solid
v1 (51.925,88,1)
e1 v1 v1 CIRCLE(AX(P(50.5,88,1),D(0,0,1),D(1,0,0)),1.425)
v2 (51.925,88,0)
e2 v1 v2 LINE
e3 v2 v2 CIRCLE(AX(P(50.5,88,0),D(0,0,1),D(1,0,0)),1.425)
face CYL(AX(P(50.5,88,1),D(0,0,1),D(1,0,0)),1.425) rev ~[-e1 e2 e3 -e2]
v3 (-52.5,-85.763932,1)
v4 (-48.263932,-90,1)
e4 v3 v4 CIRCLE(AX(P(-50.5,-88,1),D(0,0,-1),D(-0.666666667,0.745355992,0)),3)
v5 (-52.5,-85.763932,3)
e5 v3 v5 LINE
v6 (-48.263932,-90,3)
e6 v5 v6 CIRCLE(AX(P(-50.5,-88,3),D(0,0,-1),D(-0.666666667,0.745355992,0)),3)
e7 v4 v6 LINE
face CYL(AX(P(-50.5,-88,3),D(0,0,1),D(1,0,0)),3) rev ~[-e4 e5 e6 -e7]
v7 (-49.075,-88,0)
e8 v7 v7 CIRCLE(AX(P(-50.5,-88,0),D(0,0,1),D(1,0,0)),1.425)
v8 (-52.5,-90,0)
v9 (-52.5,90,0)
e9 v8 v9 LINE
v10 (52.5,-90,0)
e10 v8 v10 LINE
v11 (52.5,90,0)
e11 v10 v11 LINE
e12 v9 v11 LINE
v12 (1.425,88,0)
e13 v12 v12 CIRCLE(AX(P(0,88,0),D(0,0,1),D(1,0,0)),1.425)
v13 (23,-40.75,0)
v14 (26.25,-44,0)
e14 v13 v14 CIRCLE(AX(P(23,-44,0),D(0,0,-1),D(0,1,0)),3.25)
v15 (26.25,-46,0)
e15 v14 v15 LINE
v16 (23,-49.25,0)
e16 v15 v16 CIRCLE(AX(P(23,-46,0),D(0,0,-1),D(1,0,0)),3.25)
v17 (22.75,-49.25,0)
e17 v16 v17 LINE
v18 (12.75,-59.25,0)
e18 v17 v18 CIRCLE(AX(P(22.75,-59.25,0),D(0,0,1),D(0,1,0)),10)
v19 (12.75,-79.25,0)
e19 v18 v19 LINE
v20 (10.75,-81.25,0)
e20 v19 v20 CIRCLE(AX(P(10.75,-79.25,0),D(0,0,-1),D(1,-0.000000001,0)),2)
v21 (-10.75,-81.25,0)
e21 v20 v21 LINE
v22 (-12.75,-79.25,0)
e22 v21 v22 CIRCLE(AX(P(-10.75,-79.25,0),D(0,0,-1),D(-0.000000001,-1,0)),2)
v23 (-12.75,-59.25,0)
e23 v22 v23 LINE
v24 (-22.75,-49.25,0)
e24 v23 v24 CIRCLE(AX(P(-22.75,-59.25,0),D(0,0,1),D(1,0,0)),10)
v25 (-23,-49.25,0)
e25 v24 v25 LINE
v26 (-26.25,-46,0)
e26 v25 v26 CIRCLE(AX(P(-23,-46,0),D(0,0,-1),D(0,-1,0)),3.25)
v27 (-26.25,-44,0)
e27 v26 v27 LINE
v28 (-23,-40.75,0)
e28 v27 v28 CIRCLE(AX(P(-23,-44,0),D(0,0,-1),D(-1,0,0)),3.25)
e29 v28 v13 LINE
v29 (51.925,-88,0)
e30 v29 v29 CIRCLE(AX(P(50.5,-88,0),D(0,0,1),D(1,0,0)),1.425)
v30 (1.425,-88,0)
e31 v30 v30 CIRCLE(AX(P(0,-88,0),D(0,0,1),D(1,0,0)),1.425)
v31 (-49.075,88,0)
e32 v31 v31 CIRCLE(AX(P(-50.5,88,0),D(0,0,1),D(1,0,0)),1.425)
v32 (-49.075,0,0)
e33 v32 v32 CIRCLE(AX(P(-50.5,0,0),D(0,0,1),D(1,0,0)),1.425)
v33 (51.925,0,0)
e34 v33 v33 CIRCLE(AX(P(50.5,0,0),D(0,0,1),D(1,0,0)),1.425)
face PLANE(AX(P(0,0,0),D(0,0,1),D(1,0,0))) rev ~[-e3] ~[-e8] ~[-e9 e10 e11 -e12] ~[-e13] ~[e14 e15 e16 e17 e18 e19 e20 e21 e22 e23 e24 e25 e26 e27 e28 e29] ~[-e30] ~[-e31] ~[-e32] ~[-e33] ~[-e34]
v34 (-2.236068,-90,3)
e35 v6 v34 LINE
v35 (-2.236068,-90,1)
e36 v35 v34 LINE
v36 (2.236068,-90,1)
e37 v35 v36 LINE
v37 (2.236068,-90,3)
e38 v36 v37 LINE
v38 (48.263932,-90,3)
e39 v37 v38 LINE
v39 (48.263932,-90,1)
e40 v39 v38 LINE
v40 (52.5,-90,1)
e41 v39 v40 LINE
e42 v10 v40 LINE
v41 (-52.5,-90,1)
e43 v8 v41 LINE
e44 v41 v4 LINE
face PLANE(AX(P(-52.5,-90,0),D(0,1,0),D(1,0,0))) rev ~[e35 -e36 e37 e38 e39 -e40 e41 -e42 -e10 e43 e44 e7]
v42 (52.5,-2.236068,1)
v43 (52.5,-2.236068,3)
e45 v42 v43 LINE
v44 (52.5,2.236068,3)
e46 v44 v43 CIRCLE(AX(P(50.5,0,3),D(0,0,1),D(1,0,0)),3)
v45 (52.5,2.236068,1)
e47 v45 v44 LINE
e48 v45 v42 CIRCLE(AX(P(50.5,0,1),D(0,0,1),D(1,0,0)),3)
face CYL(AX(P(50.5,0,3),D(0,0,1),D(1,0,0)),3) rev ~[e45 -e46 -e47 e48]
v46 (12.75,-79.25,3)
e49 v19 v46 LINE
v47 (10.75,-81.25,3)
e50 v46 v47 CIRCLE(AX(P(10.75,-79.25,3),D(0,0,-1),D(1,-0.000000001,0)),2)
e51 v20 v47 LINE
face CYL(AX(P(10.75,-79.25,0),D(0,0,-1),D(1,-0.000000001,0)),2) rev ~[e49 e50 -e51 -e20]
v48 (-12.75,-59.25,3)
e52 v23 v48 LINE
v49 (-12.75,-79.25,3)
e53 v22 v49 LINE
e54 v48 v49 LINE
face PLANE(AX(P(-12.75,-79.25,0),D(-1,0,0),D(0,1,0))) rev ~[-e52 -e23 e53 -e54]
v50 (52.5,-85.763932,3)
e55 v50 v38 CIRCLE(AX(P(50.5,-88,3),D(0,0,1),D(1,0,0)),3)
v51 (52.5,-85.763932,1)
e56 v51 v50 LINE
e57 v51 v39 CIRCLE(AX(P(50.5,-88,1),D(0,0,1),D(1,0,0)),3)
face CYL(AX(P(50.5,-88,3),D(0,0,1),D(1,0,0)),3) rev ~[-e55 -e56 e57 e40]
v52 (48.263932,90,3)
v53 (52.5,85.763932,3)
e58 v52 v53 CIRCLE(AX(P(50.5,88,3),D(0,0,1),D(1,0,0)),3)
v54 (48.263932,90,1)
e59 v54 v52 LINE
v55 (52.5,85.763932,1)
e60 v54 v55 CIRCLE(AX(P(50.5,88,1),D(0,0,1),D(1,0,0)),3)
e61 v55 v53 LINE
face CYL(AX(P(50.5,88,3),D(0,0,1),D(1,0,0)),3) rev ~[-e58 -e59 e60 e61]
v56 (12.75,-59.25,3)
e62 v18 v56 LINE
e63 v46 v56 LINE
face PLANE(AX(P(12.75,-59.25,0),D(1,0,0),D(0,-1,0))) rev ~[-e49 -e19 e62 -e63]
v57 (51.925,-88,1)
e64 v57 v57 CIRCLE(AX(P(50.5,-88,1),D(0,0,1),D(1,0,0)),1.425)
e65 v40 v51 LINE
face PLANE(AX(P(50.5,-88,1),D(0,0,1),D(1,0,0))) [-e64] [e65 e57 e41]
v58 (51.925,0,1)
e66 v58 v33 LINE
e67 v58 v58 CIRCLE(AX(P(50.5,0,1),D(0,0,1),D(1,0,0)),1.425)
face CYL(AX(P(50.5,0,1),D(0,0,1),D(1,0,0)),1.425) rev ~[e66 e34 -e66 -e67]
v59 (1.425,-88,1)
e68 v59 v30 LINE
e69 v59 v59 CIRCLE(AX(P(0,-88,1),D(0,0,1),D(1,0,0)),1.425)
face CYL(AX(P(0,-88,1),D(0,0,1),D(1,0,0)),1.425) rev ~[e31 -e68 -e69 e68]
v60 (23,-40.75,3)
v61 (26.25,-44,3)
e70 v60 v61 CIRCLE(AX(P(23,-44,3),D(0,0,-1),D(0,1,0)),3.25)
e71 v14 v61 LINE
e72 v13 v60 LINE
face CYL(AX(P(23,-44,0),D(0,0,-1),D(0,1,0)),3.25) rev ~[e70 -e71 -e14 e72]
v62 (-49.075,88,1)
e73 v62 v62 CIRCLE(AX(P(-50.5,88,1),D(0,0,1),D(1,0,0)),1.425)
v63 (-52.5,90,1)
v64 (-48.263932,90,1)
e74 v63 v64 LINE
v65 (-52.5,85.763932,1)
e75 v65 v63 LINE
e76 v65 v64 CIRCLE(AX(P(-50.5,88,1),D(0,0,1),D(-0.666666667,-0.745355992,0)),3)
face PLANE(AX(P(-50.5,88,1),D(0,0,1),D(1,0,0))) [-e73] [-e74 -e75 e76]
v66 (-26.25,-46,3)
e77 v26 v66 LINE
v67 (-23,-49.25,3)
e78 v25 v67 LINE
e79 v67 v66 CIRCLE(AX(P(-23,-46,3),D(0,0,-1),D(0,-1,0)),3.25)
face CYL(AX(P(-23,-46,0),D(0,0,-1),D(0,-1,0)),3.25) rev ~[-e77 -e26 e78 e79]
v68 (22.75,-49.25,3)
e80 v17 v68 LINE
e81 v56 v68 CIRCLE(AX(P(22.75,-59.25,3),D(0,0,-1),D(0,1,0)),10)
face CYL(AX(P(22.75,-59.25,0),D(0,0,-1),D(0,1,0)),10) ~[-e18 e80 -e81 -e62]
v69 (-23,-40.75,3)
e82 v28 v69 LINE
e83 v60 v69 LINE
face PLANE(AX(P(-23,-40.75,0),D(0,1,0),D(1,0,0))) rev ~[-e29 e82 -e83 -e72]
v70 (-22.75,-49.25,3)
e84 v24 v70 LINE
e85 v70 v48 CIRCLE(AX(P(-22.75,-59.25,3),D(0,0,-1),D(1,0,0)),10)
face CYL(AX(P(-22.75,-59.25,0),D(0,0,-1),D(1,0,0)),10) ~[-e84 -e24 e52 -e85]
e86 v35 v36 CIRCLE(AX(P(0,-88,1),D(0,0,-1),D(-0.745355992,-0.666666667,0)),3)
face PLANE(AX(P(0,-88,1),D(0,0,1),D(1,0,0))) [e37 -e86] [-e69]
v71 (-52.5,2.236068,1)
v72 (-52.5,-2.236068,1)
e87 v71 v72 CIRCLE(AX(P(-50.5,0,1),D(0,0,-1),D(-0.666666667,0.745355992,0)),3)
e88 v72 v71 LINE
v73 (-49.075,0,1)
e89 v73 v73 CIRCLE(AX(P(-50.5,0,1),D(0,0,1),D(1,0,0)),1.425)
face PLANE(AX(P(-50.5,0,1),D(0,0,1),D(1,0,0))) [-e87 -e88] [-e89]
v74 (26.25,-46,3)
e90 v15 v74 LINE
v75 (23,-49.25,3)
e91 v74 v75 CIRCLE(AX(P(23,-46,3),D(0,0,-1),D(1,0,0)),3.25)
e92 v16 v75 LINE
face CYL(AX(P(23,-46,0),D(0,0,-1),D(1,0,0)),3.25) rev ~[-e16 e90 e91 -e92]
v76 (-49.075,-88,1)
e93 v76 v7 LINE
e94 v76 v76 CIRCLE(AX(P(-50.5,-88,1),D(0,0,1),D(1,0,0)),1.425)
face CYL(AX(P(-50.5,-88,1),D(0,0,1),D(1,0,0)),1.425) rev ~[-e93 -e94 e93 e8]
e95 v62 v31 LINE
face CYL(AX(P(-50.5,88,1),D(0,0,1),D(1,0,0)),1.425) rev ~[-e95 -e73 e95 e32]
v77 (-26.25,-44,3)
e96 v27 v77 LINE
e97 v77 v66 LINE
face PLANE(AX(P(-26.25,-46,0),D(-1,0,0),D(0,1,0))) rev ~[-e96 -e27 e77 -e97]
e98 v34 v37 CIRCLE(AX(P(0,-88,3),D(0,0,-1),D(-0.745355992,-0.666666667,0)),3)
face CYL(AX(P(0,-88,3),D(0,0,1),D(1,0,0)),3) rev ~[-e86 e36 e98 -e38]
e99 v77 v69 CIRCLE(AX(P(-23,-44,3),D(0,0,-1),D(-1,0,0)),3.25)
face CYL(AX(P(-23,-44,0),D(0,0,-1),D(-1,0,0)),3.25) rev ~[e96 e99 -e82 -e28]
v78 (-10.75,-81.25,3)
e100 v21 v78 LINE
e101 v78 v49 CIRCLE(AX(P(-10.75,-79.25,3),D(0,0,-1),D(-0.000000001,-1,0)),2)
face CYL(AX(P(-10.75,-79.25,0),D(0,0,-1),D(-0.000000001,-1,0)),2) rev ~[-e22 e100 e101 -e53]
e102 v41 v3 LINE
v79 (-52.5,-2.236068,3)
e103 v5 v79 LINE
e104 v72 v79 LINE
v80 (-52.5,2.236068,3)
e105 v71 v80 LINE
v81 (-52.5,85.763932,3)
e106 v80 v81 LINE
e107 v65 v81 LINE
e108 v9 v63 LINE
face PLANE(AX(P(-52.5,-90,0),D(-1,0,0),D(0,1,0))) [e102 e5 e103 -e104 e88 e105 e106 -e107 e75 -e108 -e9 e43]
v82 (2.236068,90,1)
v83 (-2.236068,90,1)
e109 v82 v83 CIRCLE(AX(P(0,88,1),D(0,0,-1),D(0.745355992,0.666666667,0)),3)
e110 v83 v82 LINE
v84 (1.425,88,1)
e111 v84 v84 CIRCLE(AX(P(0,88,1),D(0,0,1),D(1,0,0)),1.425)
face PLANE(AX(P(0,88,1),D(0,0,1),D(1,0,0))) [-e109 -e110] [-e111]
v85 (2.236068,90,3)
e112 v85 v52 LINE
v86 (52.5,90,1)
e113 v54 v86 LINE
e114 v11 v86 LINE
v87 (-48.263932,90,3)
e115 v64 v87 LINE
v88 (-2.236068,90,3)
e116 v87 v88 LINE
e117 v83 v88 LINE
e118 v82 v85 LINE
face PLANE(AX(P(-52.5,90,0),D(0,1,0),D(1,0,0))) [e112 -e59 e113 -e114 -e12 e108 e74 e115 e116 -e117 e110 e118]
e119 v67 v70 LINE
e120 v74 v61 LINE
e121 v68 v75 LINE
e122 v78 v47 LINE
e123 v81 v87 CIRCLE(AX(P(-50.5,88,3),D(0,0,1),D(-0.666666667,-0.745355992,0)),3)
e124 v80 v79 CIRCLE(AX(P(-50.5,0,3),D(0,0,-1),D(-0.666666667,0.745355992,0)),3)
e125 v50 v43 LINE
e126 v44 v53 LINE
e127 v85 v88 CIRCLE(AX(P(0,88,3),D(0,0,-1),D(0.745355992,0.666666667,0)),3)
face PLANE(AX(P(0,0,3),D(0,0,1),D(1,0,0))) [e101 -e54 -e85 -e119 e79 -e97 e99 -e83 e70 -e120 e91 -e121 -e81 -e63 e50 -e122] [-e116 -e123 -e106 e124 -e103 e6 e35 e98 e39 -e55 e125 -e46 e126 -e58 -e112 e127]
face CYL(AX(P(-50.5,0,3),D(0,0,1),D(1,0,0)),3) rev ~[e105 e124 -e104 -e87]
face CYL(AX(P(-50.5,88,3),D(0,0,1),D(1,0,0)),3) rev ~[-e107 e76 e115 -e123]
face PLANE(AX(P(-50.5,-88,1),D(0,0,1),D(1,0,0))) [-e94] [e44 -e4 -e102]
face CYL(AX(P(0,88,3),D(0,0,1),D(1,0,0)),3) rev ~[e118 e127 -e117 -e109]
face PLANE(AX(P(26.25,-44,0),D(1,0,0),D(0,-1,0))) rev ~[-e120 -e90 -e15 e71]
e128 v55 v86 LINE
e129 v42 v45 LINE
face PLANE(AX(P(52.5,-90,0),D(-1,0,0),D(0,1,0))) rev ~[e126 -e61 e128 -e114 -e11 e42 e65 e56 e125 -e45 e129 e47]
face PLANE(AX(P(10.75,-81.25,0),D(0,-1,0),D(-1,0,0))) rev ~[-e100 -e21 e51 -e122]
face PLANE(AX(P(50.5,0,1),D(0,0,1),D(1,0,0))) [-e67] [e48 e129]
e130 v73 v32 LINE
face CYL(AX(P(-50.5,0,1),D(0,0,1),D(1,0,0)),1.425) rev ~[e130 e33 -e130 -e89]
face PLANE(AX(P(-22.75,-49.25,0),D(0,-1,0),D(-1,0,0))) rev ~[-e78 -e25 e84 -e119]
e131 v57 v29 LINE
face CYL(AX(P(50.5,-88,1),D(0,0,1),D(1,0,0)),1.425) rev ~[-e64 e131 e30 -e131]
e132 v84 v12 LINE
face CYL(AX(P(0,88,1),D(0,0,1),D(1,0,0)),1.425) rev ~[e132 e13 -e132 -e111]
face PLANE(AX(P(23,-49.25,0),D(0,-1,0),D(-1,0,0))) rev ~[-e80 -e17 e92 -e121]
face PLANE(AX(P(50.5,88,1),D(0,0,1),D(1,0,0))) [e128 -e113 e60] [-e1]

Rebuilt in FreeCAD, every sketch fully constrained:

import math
import FreeCAD as App
import Part
import Sketcher
from FreeCAD import Vector


def add_polygon(sketch, points):
    """Adds a closed chain of lines whose ends are joined by coincident constraints."""
    first, n = sketch.GeometryCount, len(points)
    for a, b in zip(points, points[1:] + points[:1]):
        sketch.addGeometry(Part.LineSegment(App.Vector(*a, 0), App.Vector(*b, 0)), False)
    for i in range(n):
        sketch.addConstraint(Sketcher.Constraint("Coincident", first + i, 2, first + (i + 1) % n, 1))

doc = App.newDocument("Part")
body = doc.addObject("PartDesign::Body", "Body")

# Sketch on XY plane
sketch1 = body.newObject("Sketcher::SketchObject", "Sketch")
sketch1.AttachmentSupport = (doc.getObject("XY_Plane"), [""])
sketch1.MapMode = "FlatFace"
add_polygon(sketch1, [(-52.5, 90), (-52.5, -90), (52.5, -90), (52.5, 90)])  # lines 0-3
sketch1.addConstraint([
    Sketcher.Constraint("Vertical", 0),
    Sketcher.Constraint("Horizontal", 1),
    Sketcher.Constraint("Vertical", 2),
    Sketcher.Constraint("Horizontal", 3),
    Sketcher.Constraint("Symmetric", 0, 2, 2, 2, -1, 1),
    Sketcher.Constraint("DistanceX", 1, 1, 1, 2, 105.0),
    Sketcher.Constraint("DistanceY", 0, 2, 0, 1, 180.0),
])
pad1 = body.newObject("PartDesign::Pad", "Pad")
pad1.Profile = sketch1
pad1.Length = 3

# Sketch on XY plane
sketch2 = body.newObject("Sketcher::SketchObject", "Sketch001")
sketch2.AttachmentSupport = (doc.getObject("XY_Plane"), [""])
sketch2.MapMode = "FlatFace"
sketch2.addGeometry([
    Part.LineSegment(Vector(26.25, -44, 0), Vector(26.25, -46, 0)),  # 0
    Part.ArcOfCircle(Part.Circle(Vector(23, -46, 0), Vector(0, 0, 1), 3.25), math.radians(-90), math.radians(0)),  # 1
    Part.LineSegment(Vector(23, -49.25, 0), Vector(22.75, -49.25, 0)),  # 2
    Part.ArcOfCircle(Part.Circle(Vector(22.75, -59.25, 0), Vector(0, 0, 1), 10), math.radians(90), math.radians(180)),  # 3
    Part.LineSegment(Vector(12.75, -59.25, 0), Vector(12.75, -79.25, 0)),  # 4
    Part.ArcOfCircle(Part.Circle(Vector(10.75, -79.25, 0), Vector(0, 0, 1), 2), math.radians(-90), math.radians(0)),  # 5
    Part.LineSegment(Vector(10.75, -81.25, 0), Vector(-10.75, -81.25, 0)),  # 6
    Part.ArcOfCircle(Part.Circle(Vector(-10.75, -79.25, 0), Vector(0, 0, 1), 2), math.radians(-180), math.radians(-90)),  # 7
    Part.LineSegment(Vector(-12.75, -79.25, 0), Vector(-12.75, -59.25, 0)),  # 8
    Part.ArcOfCircle(Part.Circle(Vector(-22.75, -59.25, 0), Vector(0, 0, 1), 10), math.radians(0), math.radians(90)),  # 9
    Part.LineSegment(Vector(-22.75, -49.25, 0), Vector(-23, -49.25, 0)),  # 10
    Part.ArcOfCircle(Part.Circle(Vector(-23, -46, 0), Vector(0, 0, 1), 3.25), math.radians(180), math.radians(270)),  # 11
    Part.LineSegment(Vector(-26.25, -46, 0), Vector(-26.25, -44, 0)),  # 12
    Part.ArcOfCircle(Part.Circle(Vector(-23, -44, 0), Vector(0, 0, 1), 3.25), math.radians(90), math.radians(180)),  # 13
    Part.LineSegment(Vector(-23, -40.75, 0), Vector(23, -40.75, 0)),  # 14
    Part.ArcOfCircle(Part.Circle(Vector(23, -44, 0), Vector(0, 0, 1), 3.25), math.radians(0), math.radians(90)),  # 15
], False)
sketch2.addConstraint([
    Sketcher.Constraint("Tangent", 0, 2, 1, 2),
    Sketcher.Constraint("Tangent", 1, 1, 2, 1),
    Sketcher.Constraint("Tangent", 2, 2, 3, 1),
    Sketcher.Constraint("Tangent", 3, 2, 4, 1),
    Sketcher.Constraint("Tangent", 4, 2, 5, 2),
    Sketcher.Constraint("Tangent", 5, 1, 6, 1),
    Sketcher.Constraint("Tangent", 6, 2, 7, 2),
    Sketcher.Constraint("Tangent", 7, 1, 8, 1),
    Sketcher.Constraint("Tangent", 8, 2, 9, 1),
    Sketcher.Constraint("Tangent", 9, 2, 10, 1),
    Sketcher.Constraint("Tangent", 10, 2, 11, 2),
    Sketcher.Constraint("Tangent", 11, 1, 12, 1),
    Sketcher.Constraint("Tangent", 12, 2, 13, 2),
    Sketcher.Constraint("Tangent", 13, 1, 14, 1),
    Sketcher.Constraint("Tangent", 14, 2, 15, 2),
    Sketcher.Constraint("Tangent", 15, 1, 0, 1),
    Sketcher.Constraint("Vertical", 0),
    Sketcher.Constraint("Horizontal", 2),
    Sketcher.Constraint("Vertical", 4),
    Sketcher.Constraint("Horizontal", 6),
    Sketcher.Constraint("Vertical", 8),
    Sketcher.Constraint("Horizontal", 10),
    Sketcher.Constraint("Vertical", 12),
    Sketcher.Constraint("Horizontal", 14),
    Sketcher.Constraint("Equal", 5, 7),
    Sketcher.Constraint("Equal", 3, 9),
    Sketcher.Constraint("Equal", 1, 11),
    Sketcher.Constraint("Equal", 11, 13),
    Sketcher.Constraint("Equal", 13, 15),
    Sketcher.Constraint("Symmetric", 3, 3, 9, 3, -2),
    Sketcher.Constraint("Equal", 2, 10),
    Sketcher.Constraint("Radius", 3, 10.0),
    Sketcher.Constraint("Radius", 5, 2.0),
    Sketcher.Constraint("DistanceX", 14, 1, 14, 2, 46.0),
    Sketcher.Constraint("DistanceY", 0, 2, 0, 1, 2.0),
    Sketcher.Constraint("DistanceY", 4, 2, 4, 1, 20.0),
    Sketcher.Constraint("Radius", 1, 3.25),
    Sketcher.Constraint("DistanceX", 6, 2, 6, 1, 21.5),
    Sketcher.Constraint("DistanceY", 1, 3, -1, 1, 46.0),
])
pocket1 = body.newObject("PartDesign::Pocket", "Pocket")
pocket1.Profile = sketch2
pocket1.Length = 10
pocket1.Reversed = True

# Sketch on XY plane
sketch3 = body.newObject("Sketcher::SketchObject", "Sketch002")
sketch3.AttachmentSupport = (doc.getObject("XY_Plane"), [""])
sketch3.MapMode = "FlatFace"
sketch3.AttachmentOffset = App.Placement(Vector(0, 0, 3), App.Rotation())
sketch3.addGeometry([
    Part.Circle(Vector(-50.5, 88, 0), Vector(0, 0, 1), 3),  # 0
    Part.Circle(Vector(0, 88, 0), Vector(0, 0, 1), 3),  # 1
    Part.Circle(Vector(50.5, 88, 0), Vector(0, 0, 1), 3),  # 2
    Part.Circle(Vector(50.5, 0, 0), Vector(0, 0, 1), 3),  # 3
    Part.Circle(Vector(50.5, -88, 0), Vector(0, 0, 1), 3),  # 4
    Part.Circle(Vector(0, -88, 0), Vector(0, 0, 1), 3),  # 5
    Part.Circle(Vector(-50.5, -88, 0), Vector(0, 0, 1), 3),  # 6
    Part.Circle(Vector(-50.5, 0, 0), Vector(0, 0, 1), 3),  # 7
], False)
sketch3.addConstraint([
    Sketcher.Constraint("Equal", 0, 1),
    Sketcher.Constraint("Equal", 1, 2),
    Sketcher.Constraint("Equal", 2, 3),
    Sketcher.Constraint("Equal", 3, 4),
    Sketcher.Constraint("Equal", 4, 5),
    Sketcher.Constraint("Equal", 5, 6),
    Sketcher.Constraint("Equal", 6, 7),
    Sketcher.Constraint("Symmetric", 0, 3, 4, 3, -1, 1),
    Sketcher.Constraint("Symmetric", 1, 3, 5, 3, -1, 1),
    Sketcher.Constraint("Symmetric", 2, 3, 6, 3, -1, 1),
    Sketcher.Constraint("Symmetric", 3, 3, 7, 3, -1, 1),
    Sketcher.Constraint("Symmetric", 0, 3, 2, 3, -2),
    Sketcher.Constraint("PointOnObject", 1, 3, -2),
    Sketcher.Constraint("PointOnObject", 3, 3, -1),
    Sketcher.Constraint("Horizontal", 0, 3, 1, 3),
    Sketcher.Constraint("Vertical", 2, 3, 3, 3),
    Sketcher.Constraint("Diameter", 0, 6.0),
    Sketcher.Constraint("DistanceY", -1, 1, 0, 3, 88.0),
    Sketcher.Constraint("DistanceX", 0, 3, 2, 3, 101.0),
])
pocket2 = body.newObject("PartDesign::Pocket", "Pocket001")
pocket2.Profile = sketch3
pocket2.Length = 2

# Sketch on XY plane
sketch4 = body.newObject("Sketcher::SketchObject", "Sketch003")
sketch4.AttachmentSupport = (doc.getObject("XY_Plane"), [""])
sketch4.MapMode = "FlatFace"
sketch4.AttachmentOffset = App.Placement(Vector(0, 0, 1), App.Rotation())
sketch4.addGeometry([
    Part.Circle(Vector(-50.5, 88, 0), Vector(0, 0, 1), 1.425),  # 0
    Part.Circle(Vector(0, 88, 0), Vector(0, 0, 1), 1.425),  # 1
    Part.Circle(Vector(50.5, 88, 0), Vector(0, 0, 1), 1.425),  # 2
    Part.Circle(Vector(50.5, 0, 0), Vector(0, 0, 1), 1.425),  # 3
    Part.Circle(Vector(50.5, -88, 0), Vector(0, 0, 1), 1.425),  # 4
    Part.Circle(Vector(0, -88, 0), Vector(0, 0, 1), 1.425),  # 5
    Part.Circle(Vector(-50.5, -88, 0), Vector(0, 0, 1), 1.425),  # 6
    Part.Circle(Vector(-50.5, 0, 0), Vector(0, 0, 1), 1.425),  # 7
], False)
sketch4.addConstraint([
    Sketcher.Constraint("Equal", 0, 1),
    Sketcher.Constraint("Equal", 1, 2),
    Sketcher.Constraint("Equal", 2, 3),
    Sketcher.Constraint("Equal", 3, 4),
    Sketcher.Constraint("Equal", 4, 5),
    Sketcher.Constraint("Equal", 5, 6),
    Sketcher.Constraint("Equal", 6, 7),
    Sketcher.Constraint("Symmetric", 0, 3, 4, 3, -1, 1),
    Sketcher.Constraint("Symmetric", 1, 3, 5, 3, -1, 1),
    Sketcher.Constraint("Symmetric", 2, 3, 6, 3, -1, 1),
    Sketcher.Constraint("Symmetric", 3, 3, 7, 3, -1, 1),
    Sketcher.Constraint("Symmetric", 0, 3, 2, 3, -2),
    Sketcher.Constraint("PointOnObject", 1, 3, -2),
    Sketcher.Constraint("PointOnObject", 3, 3, -1),
    Sketcher.Constraint("Horizontal", 0, 3, 1, 3),
    Sketcher.Constraint("Vertical", 2, 3, 3, 3),
    Sketcher.Constraint("Diameter", 0, 2.85),
    Sketcher.Constraint("DistanceY", -1, 1, 0, 3, 88.0),
    Sketcher.Constraint("DistanceX", 0, 3, 2, 3, 101.0),
])
pocket3 = body.newObject("PartDesign::Pocket", "Pocket002")
pocket3.Profile = sketch4
pocket3.Length = 2

doc.recompute()
